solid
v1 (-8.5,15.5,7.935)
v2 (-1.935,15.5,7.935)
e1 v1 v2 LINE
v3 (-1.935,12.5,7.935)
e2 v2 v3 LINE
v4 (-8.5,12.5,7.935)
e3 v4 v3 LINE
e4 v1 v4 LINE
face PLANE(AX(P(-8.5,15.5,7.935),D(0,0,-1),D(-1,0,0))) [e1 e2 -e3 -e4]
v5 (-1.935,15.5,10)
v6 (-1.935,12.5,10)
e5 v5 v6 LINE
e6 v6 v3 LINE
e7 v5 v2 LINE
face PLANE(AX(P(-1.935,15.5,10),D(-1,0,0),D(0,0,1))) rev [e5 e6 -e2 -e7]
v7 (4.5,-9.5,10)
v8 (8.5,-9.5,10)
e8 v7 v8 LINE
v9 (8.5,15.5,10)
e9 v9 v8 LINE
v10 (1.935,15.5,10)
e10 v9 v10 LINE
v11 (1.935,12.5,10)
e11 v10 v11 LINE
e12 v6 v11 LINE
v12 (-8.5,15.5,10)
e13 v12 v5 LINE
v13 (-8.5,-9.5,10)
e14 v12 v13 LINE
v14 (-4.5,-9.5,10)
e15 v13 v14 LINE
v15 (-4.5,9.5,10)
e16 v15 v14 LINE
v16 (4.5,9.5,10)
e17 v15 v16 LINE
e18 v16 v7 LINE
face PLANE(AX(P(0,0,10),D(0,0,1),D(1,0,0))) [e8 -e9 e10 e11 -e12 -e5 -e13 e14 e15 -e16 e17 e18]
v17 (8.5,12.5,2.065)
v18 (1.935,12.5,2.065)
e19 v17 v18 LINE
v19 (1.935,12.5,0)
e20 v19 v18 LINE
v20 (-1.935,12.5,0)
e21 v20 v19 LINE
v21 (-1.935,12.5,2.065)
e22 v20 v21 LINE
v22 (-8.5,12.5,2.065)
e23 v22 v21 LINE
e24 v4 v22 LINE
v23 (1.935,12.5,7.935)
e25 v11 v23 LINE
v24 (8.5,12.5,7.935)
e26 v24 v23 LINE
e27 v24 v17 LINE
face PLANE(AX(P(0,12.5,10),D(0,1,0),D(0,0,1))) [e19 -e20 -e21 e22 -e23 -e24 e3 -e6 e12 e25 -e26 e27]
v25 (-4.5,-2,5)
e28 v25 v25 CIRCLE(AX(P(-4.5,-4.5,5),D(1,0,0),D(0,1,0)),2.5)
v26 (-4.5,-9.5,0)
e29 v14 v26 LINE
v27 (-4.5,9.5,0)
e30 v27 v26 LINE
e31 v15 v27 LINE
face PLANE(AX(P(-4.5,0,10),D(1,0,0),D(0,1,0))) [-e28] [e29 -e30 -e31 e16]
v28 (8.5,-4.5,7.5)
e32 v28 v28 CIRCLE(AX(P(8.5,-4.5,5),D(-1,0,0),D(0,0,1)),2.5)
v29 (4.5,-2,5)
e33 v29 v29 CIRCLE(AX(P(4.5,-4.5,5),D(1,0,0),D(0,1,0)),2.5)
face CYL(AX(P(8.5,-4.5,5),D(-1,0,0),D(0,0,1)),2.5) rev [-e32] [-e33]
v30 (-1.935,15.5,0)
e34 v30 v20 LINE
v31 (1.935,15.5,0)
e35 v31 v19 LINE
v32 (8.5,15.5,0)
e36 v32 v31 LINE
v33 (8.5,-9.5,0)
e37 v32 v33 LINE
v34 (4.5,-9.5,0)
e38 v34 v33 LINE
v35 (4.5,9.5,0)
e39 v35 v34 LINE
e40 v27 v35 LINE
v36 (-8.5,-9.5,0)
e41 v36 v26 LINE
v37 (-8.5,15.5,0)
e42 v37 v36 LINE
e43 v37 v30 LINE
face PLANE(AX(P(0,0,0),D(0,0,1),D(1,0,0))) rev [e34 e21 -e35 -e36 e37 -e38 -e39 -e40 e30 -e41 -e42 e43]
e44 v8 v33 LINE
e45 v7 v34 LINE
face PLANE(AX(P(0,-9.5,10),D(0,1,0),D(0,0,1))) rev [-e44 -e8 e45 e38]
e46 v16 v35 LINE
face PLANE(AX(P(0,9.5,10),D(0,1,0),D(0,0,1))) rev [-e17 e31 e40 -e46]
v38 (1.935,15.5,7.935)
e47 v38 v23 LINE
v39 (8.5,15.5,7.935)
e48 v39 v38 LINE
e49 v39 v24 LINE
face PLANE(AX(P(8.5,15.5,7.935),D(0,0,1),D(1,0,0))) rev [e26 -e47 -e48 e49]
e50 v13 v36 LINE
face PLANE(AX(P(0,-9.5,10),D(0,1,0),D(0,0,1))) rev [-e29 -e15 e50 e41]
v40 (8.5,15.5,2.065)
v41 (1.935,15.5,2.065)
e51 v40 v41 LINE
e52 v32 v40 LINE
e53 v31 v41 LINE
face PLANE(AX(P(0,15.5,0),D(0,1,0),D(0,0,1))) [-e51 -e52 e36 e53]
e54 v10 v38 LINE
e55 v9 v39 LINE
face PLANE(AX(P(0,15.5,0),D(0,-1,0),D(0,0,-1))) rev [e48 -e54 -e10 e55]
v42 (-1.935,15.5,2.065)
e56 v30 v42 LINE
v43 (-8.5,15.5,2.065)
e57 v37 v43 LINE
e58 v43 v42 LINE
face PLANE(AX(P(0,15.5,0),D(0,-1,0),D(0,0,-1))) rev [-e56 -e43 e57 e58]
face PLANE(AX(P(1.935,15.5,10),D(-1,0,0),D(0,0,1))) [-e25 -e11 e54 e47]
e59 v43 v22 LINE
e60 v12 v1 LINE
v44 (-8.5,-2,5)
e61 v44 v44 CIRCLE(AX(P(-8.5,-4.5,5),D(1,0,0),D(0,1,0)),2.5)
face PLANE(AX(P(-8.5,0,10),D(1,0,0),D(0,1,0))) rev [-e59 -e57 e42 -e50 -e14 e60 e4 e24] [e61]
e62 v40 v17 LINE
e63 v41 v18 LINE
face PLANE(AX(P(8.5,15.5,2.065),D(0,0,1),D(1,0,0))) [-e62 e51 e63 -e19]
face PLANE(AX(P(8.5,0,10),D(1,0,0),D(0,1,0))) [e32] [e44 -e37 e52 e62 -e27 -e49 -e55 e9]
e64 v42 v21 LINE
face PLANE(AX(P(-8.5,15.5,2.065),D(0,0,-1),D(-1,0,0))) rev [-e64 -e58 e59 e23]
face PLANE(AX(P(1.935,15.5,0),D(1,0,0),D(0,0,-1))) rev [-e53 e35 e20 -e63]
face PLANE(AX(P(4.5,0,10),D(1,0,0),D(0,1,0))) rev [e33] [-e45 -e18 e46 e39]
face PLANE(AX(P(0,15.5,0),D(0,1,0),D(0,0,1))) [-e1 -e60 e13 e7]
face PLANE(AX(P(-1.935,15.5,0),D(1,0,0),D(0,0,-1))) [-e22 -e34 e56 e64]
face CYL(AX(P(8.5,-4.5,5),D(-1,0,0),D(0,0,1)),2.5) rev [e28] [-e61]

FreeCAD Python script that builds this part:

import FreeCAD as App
import Part
import Sketcher


def add_polygon(sketch, points):
    """Adds a closed chain of lines whose ends are joined by coincident constraints."""
    first, n = sketch.GeometryCount, len(points)
    for a, b in zip(points, points[1:] + points[:1]):
        sketch.addGeometry(Part.LineSegment(App.Vector(*a, 0), App.Vector(*b, 0)), False)
    for i in range(n):
        sketch.addConstraint(Sketcher.Constraint("Coincident", first + i, 2, first + (i + 1) % n, 1))

doc = App.newDocument("Part")
body = doc.addObject("PartDesign::Body", "Body")

# Sketch on XY plane
sketch1 = body.newObject("Sketcher::SketchObject", "Sketch")
sketch1.AttachmentSupport = (doc.getObject("XY_Plane"), [""])
sketch1.MapMode = "FlatFace"
add_polygon(sketch1, [(-4.5, -9.5), (-4.5, 9.5), (4.5, 9.5), (4.5, -9.5), (8.5, -9.5), (8.5, 12.5), (-8.5, 12.5), (-8.5, -9.5)])  # lines 0-7
sketch1.addConstraint([
    Sketcher.Constraint("Vertical", 0),
    Sketcher.Constraint("Horizontal", 1),
    Sketcher.Constraint("Vertical", 2),
    Sketcher.Constraint("Horizontal", 3),
    Sketcher.Constraint("Vertical", 4),
    Sketcher.Constraint("Horizontal", 5),
    Sketcher.Constraint("Vertical", 6),
    Sketcher.Constraint("Horizontal", 7),
    Sketcher.Constraint("Symmetric", 0, 2, 2, 2, -1, 1),
    Sketcher.Constraint("Symmetric", 3, 2, 6, 2, -2),
    Sketcher.Constraint("DistanceX", 1, 1, 1, 2, 9.0),
    Sketcher.Constraint("DistanceX", 3, 1, 3, 2, 4.0),
    Sketcher.Constraint("DistanceY", 0, 1, 0, 2, 19.0),
    Sketcher.Constraint("DistanceY", 4, 1, 4, 2, 22.0),
])
pad1 = body.newObject("PartDesign::Pad", "Pad")
pad1.Profile = sketch1
pad1.Length = 10

# Sketch on YZ plane
sketch2 = body.newObject("Sketcher::SketchObject", "Sketch001")
sketch2.AttachmentSupport = (doc.getObject("YZ_Plane"), [""])
sketch2.MapMode = "FlatFace"
sketch2.AttachmentOffset = App.Placement(App.Vector(0, 0, -8.5), App.Rotation())
sketch2.addGeometry(Part.Circle(App.Vector(-4.5, 5, 0), App.Vector(0, 0, 1), 2.5), False)
sketch2.addConstraint([
    Sketcher.Constraint("Diameter", 0, 5.0),
    Sketcher.Constraint("DistanceY", -1, 1, 0, 3, 5.0),
    Sketcher.Constraint("DistanceX", 0, 3, -1, 1, 4.5),
])
pocket1 = body.newObject("PartDesign::Pocket", "Pocket")
pocket1.Profile = sketch2
pocket1.Type = "ThroughAll"
pocket1.Midplane = True

# Sketch on XZ plane
sketch3 = body.newObject("Sketcher::SketchObject", "Sketch002")
sketch3.AttachmentSupport = (doc.getObject("XZ_Plane"), [""])
sketch3.MapMode = "FlatFace"
sketch3.AttachmentOffset = App.Placement(App.Vector(0, 0, -12.5), App.Rotation())
add_polygon(sketch3, [(-8.5, 0), (-8.5, 2.1), (-1.9, 2.1), (-1.9, 0)])  # lines 0-3
add_polygon(sketch3, [(-8.5, 7.9), (-8.5, 10), (-1.9, 10), (-1.9, 7.9)])  # lines 4-7
add_polygon(sketch3, [(1.9, 0), (1.9, 2.1), (8.5, 2.1), (8.5, 0)])  # lines 8-11
add_polygon(sketch3, [(1.9, 7.9), (1.9, 10), (8.5, 10), (8.5, 7.9)])  # lines 12-15
sketch3.addConstraint([
    Sketcher.Constraint("Vertical", 0),
    Sketcher.Constraint("Horizontal", 1),
    Sketcher.Constraint("Vertical", 2),
    Sketcher.Constraint("Horizontal", 3),
    Sketcher.Constraint("Vertical", 4),
    Sketcher.Constraint("Horizontal", 5),
    Sketcher.Constraint("Vertical", 6),
    Sketcher.Constraint("Horizontal", 7),
    Sketcher.Constraint("Vertical", 8),
    Sketcher.Constraint("Horizontal", 9),
    Sketcher.Constraint("Vertical", 10),
    Sketcher.Constraint("Horizontal", 11),
    Sketcher.Constraint("Vertical", 12),
    Sketcher.Constraint("Horizontal", 13),
    Sketcher.Constraint("Vertical", 14),
    Sketcher.Constraint("Horizontal", 15),
    Sketcher.Constraint("Symmetric", 3, 2, 10, 2, -1, 1),
    Sketcher.Constraint("Symmetric", 1, 2, 8, 2, -2),
    Sketcher.Constraint("Symmetric", 5, 2, 12, 2, -2),
    Sketcher.Constraint("Symmetric", 7, 2, 14, 2, -2),
    Sketcher.Constraint("PointOnObject", 2, 2, -1),
    Sketcher.Constraint("Vertical", 3, 2, 4, 2),
    Sketcher.Constraint("Vertical", 2, 2, 5, 2),
    Sketcher.Constraint("Equal", 2, 4),
    Sketcher.Constraint("DistanceY", -1, 1, 4, 2, 10.0),
    Sketcher.Constraint("DistanceX", 0, 2, -1, 1, 8.5),
    Sketcher.Constraint("DistanceX", 1, 1, 1, 2, 6.565),
    Sketcher.Constraint("DistanceY", 0, 1, 0, 2, 2.065),
])
pad2 = body.newObject("PartDesign::Pad", "Pad001")
pad2.Profile = sketch3
pad2.Length = 3
pad2.Reversed = True

doc.recompute()
